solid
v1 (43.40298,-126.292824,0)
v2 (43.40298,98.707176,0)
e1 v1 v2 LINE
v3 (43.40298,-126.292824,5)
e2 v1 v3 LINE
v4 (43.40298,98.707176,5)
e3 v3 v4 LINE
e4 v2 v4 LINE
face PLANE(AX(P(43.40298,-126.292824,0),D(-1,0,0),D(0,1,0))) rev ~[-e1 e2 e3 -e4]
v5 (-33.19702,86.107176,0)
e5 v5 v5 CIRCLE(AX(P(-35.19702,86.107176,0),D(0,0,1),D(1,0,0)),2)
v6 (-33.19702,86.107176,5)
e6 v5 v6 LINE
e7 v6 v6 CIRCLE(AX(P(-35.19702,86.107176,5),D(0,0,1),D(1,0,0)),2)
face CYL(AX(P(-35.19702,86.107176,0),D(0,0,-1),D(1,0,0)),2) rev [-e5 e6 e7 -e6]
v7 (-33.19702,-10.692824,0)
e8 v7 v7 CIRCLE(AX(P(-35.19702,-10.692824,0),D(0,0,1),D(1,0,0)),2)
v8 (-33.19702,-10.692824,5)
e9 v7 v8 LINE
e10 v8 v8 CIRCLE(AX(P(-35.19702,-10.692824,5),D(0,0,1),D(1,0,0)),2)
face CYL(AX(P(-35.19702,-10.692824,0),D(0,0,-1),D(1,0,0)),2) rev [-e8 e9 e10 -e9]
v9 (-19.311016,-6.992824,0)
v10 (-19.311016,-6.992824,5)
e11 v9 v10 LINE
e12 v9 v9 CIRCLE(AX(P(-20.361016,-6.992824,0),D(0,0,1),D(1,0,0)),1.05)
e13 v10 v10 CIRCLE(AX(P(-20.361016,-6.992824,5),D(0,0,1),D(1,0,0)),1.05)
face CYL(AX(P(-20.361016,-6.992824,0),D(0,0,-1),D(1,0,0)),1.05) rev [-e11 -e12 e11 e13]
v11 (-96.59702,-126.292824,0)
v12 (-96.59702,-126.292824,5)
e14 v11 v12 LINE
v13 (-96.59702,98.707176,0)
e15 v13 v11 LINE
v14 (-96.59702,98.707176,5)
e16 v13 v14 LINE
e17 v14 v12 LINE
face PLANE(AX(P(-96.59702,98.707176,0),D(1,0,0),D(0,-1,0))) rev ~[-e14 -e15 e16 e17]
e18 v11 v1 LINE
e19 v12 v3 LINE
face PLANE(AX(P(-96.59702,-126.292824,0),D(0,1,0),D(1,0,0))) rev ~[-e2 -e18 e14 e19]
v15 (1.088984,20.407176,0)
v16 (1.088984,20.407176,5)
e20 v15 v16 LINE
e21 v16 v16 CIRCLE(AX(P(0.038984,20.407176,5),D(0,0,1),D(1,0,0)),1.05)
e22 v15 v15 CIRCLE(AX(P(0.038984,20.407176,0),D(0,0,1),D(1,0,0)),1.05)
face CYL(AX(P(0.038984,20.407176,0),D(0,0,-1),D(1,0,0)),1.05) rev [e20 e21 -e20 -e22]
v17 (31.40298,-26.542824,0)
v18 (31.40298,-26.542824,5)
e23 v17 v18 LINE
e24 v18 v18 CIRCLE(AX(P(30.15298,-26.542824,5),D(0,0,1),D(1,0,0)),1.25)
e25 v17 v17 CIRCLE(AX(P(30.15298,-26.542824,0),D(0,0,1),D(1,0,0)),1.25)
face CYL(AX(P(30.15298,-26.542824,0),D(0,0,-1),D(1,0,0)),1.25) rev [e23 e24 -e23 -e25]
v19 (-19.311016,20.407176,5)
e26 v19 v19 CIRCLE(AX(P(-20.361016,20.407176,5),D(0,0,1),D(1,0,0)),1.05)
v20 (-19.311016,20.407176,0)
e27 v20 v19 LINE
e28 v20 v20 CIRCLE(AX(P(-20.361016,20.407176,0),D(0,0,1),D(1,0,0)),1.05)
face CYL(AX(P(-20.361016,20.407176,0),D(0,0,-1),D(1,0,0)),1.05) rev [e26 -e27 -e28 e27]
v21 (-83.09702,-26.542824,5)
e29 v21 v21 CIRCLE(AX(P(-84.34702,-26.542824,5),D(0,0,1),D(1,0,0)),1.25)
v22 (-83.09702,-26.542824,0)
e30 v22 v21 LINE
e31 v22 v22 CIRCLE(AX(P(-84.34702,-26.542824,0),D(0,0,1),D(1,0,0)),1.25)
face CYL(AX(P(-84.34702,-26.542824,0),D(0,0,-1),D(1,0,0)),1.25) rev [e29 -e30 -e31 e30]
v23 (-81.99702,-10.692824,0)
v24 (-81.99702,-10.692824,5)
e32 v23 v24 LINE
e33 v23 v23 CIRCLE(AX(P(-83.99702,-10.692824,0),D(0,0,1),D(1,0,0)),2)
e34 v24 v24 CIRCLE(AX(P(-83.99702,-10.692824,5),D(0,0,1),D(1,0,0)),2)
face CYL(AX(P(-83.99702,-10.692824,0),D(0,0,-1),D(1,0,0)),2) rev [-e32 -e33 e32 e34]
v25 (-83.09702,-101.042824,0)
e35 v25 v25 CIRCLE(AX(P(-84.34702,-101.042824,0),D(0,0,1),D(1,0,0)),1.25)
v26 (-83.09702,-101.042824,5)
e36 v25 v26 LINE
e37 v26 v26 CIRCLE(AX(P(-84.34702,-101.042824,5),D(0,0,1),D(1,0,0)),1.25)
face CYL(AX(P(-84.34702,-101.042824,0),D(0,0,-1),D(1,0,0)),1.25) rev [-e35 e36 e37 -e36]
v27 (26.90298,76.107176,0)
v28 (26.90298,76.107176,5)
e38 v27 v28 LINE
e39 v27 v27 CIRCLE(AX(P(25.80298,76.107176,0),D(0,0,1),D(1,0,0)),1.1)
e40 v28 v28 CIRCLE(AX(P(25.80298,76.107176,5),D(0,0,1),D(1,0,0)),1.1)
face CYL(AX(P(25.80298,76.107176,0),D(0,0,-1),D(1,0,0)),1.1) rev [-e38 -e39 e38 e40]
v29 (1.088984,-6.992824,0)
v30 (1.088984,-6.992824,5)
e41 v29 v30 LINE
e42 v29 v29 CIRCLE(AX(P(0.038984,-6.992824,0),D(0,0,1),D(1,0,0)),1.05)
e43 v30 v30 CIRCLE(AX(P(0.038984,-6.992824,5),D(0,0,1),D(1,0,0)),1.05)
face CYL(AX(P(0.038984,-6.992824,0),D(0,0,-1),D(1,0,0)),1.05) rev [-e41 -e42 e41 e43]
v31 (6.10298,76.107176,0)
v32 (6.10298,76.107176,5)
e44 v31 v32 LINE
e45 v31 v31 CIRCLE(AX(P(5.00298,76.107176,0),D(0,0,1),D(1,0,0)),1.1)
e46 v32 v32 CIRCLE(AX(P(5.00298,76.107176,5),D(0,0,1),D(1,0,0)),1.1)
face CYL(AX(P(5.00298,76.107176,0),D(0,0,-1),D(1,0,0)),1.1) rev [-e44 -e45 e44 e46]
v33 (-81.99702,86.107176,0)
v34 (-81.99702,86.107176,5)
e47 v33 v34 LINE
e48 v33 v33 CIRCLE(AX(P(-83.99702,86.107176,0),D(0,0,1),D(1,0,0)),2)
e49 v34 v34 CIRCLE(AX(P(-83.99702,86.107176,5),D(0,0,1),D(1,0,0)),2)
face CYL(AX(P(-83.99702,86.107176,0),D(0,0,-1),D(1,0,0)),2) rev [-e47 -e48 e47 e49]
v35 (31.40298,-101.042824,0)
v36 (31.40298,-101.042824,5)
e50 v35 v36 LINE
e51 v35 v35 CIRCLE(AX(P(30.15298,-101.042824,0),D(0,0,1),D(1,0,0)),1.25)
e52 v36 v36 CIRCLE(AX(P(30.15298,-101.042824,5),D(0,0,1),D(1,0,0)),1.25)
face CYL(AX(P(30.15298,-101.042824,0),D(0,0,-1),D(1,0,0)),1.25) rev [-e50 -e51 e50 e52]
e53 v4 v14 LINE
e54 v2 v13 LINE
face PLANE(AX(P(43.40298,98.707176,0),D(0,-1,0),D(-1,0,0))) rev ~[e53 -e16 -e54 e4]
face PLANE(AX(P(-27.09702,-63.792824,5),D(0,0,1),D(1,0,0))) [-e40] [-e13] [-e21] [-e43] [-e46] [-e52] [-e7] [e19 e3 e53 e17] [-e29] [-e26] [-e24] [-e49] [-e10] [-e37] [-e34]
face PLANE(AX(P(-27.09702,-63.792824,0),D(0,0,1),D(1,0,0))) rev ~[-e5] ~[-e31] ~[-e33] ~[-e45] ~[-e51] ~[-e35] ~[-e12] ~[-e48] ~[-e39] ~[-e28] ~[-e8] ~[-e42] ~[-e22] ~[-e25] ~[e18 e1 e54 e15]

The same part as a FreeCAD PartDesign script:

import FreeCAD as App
import Part
import Sketcher
Q = App.Units.Quantity

doc = App.newDocument("Part")
body = doc.addObject("PartDesign::Body", "Body")

sketch1 = doc.addObject("Sketcher::SketchObject", "Sketch")
body.addObject(sketch1)
sketch1.AttachmentSupport = (doc.XY_Plane, [""])
sketch1.MapMode = "FlatFace"
sketch1.addGeometry(Part.LineSegment(App.Vector(43.40298, -126.292824, 0), App.Vector(43.40298, 98.707176, 0)), False)
sketch1.addGeometry(Part.LineSegment(App.Vector(43.40298, 98.707176, 0), App.Vector(-96.59702, 98.707176, 0)), False)
sketch1.addGeometry(Part.LineSegment(App.Vector(-96.59702, 98.707176, 0), App.Vector(-96.59702, -126.292824, 0)), False)
sketch1.addGeometry(Part.LineSegment(App.Vector(-96.59702, -126.292824, 0), App.Vector(43.40298, -126.292824, 0)), False)
sketch1.addGeometry(Part.Circle(App.Vector(-84.34702, -101.042824, 0), App.Vector(0, 0, 1), 1.25), False)
sketch1.addGeometry(Part.Circle(App.Vector(-84.34702, -26.542824, 0), App.Vector(0, 0, 1), 1.25), False)
sketch1.addGeometry(Part.Circle(App.Vector(-83.99702, -10.692824, 0), App.Vector(0, 0, 1), 2), False)
sketch1.addGeometry(Part.Circle(App.Vector(-35.19702, -10.692824, 0), App.Vector(0, 0, 1), 2), False)
sketch1.addGeometry(Part.Circle(App.Vector(30.15298, -101.042824, 0), App.Vector(0, 0, 1), 1.25), False)
sketch1.addGeometry(Part.Circle(App.Vector(30.15298, -26.542824, 0), App.Vector(0, 0, 1), 1.25), False)
sketch1.addGeometry(Part.Circle(App.Vector(-83.99702, 86.107176, 0), App.Vector(0, 0, 1), 2), False)
sketch1.addGeometry(Part.Circle(App.Vector(-35.19702, 86.107176, 0), App.Vector(0, 0, 1), 2), False)
sketch1.addGeometry(Part.Circle(App.Vector(-20.361016, -6.992824, 0), App.Vector(0, 0, 1), 1.05), False)
sketch1.addGeometry(Part.Circle(App.Vector(0.038984, -6.992824, 0), App.Vector(0, 0, 1), 1.05), False)
sketch1.addGeometry(Part.Circle(App.Vector(-20.361016, 20.407176, 0), App.Vector(0, 0, 1), 1.05), False)
sketch1.addGeometry(Part.Circle(App.Vector(0.038984, 20.407176, 0), App.Vector(0, 0, 1), 1.05), False)
sketch1.addGeometry(Part.Circle(App.Vector(5.00298, 76.107176, 0), App.Vector(0, 0, 1), 1.1), False)
sketch1.addGeometry(Part.Circle(App.Vector(25.80298, 76.107176, 0), App.Vector(0, 0, 1), 1.1), False)
sketch1.addConstraint(Sketcher.Constraint("Coincident", 0, 2, 1, 1))
sketch1.addConstraint(Sketcher.Constraint("Coincident", 1, 2, 2, 1))
sketch1.addConstraint(Sketcher.Constraint("Coincident", 2, 2, 3, 1))
sketch1.addConstraint(Sketcher.Constraint("Coincident", 3, 2, 0, 1))
sketch1.addConstraint(Sketcher.Constraint("Vertical", 0))
sketch1.addConstraint(Sketcher.Constraint("Horizontal", 1))
sketch1.addConstraint(Sketcher.Constraint("Vertical", 2))
sketch1.addConstraint(Sketcher.Constraint("Horizontal", 3))
sketch1.addConstraint(Sketcher.Constraint("Equal", 4, 5))
sketch1.addConstraint(Sketcher.Constraint("Equal", 6, 7))
sketch1.addConstraint(Sketcher.Constraint("Equal", 5, 8))
sketch1.addConstraint(Sketcher.Constraint("Equal", 8, 9))
sketch1.addConstraint(Sketcher.Constraint("Equal", 7, 10))
sketch1.addConstraint(Sketcher.Constraint("Equal", 10, 11))
sketch1.addConstraint(Sketcher.Constraint("Equal", 12, 13))
sketch1.addConstraint(Sketcher.Constraint("Equal", 13, 14))
sketch1.addConstraint(Sketcher.Constraint("Equal", 14, 15))
sketch1.addConstraint(Sketcher.Constraint("Equal", 16, 17))
sketch1.addConstraint(Sketcher.Constraint("Horizontal", 6, 3, 7, 3))
sketch1.addConstraint(Sketcher.Constraint("Horizontal", 4, 3, 8, 3))
sketch1.addConstraint(Sketcher.Constraint("Horizontal", 5, 3, 9, 3))
sketch1.addConstraint(Sketcher.Constraint("Horizontal", 10, 3, 11, 3))
sketch1.addConstraint(Sketcher.Constraint("Horizontal", 12, 3, 13, 3))
sketch1.addConstraint(Sketcher.Constraint("Horizontal", 14, 3, 15, 3))
sketch1.addConstraint(Sketcher.Constraint("Horizontal", 16, 3, 17, 3))
sketch1.addConstraint(Sketcher.Constraint("Vertical", 4, 3, 5, 3))
sketch1.addConstraint(Sketcher.Constraint("Vertical", 8, 3, 9, 3))
sketch1.addConstraint(Sketcher.Constraint("Vertical", 6, 3, 10, 3))
sketch1.addConstraint(Sketcher.Constraint("Vertical", 7, 3, 11, 3))
sketch1.addConstraint(Sketcher.Constraint("Vertical", 12, 3, 14, 3))
sketch1.addConstraint(Sketcher.Constraint("Vertical", 13, 3, 15, 3))
sketch1.addConstraint(Sketcher.Constraint("Diameter", 6, Q("4 mm")))
sketch1.addConstraint(Sketcher.Constraint("Diameter", 4, Q("2.5 mm")))
sketch1.addConstraint(Sketcher.Constraint("Diameter", 12, Q("2.1 mm")))
sketch1.addConstraint(Sketcher.Constraint("Diameter", 16, Q("2.2 mm")))
sketch1.addConstraint(Sketcher.Constraint("DistanceX", 1, 2, 1, 1, Q("140 mm")))
sketch1.addConstraint(Sketcher.Constraint("DistanceY", 0, 1, 0, 2, Q("225 mm")))
sketch1.addConstraint(Sketcher.Constraint("DistanceY", 16, 3, 11, 3, Q("10 mm")))
sketch1.addConstraint(Sketcher.Constraint("DistanceX", 11, 3, 17, 3, Q("61 mm")))
sketch1.addConstraint(Sketcher.Constraint("DistanceY", 4, 3, 5, 3, Q("74.5 mm")))
sketch1.addConstraint(Sketcher.Constraint("DistanceX", 6, 3, 7, 3, Q("48.8 mm")))
sketch1.addConstraint(Sketcher.Constraint("DistanceX", 4, 3, 8, 3, Q("114.5 mm")))
sketch1.addConstraint(Sketcher.Constraint("DistanceY", 6, 3, 10, 3, Q("96.8 mm")))
sketch1.addConstraint(Sketcher.Constraint("DistanceY", 7, 3, 12, 3, Q("3.7 mm")))
sketch1.addConstraint(Sketcher.Constraint("DistanceX", 12, 3, 13, 3, Q("20.4 mm")))
sketch1.addConstraint(Sketcher.Constraint("DistanceY", 12, 3, 14, 3, Q("27.4 mm")))
sketch1.addConstraint(Sketcher.Constraint("DistanceX", 11, 3, 16, 3, Q("40.2 mm")))
sketch1.addConstraint(Sketcher.Constraint("DistanceX", 17, 3, 0, 2, Q("17.6 mm")))
sketch1.addConstraint(Sketcher.Constraint("DistanceY", 17, 3, 0, 2, Q("22.6 mm")))
sketch1.addConstraint(Sketcher.Constraint("DistanceX", 5, 3, 6, 3, Q("0.35 mm")))
sketch1.addConstraint(Sketcher.Constraint("DistanceY", 5, 3, 6, 3, Q("15.85 mm")))
sketch1.addConstraint(Sketcher.Constraint("DistanceX", 4, 3, -1, 1, Q("84.34702 mm")))
sketch1.addConstraint(Sketcher.Constraint("DistanceY", 4, 3, -1, 1, Q("101.042824 mm")))
sketch1.addConstraint(Sketcher.Constraint("DistanceX", 12, 3, -1, 1, Q("20.361016 mm")))
pad1 = doc.addObject("PartDesign::Pad", "Pad")
body.addObject(pad1)
pad1.Profile = sketch1
pad1.Length = 5

doc.recompute()
